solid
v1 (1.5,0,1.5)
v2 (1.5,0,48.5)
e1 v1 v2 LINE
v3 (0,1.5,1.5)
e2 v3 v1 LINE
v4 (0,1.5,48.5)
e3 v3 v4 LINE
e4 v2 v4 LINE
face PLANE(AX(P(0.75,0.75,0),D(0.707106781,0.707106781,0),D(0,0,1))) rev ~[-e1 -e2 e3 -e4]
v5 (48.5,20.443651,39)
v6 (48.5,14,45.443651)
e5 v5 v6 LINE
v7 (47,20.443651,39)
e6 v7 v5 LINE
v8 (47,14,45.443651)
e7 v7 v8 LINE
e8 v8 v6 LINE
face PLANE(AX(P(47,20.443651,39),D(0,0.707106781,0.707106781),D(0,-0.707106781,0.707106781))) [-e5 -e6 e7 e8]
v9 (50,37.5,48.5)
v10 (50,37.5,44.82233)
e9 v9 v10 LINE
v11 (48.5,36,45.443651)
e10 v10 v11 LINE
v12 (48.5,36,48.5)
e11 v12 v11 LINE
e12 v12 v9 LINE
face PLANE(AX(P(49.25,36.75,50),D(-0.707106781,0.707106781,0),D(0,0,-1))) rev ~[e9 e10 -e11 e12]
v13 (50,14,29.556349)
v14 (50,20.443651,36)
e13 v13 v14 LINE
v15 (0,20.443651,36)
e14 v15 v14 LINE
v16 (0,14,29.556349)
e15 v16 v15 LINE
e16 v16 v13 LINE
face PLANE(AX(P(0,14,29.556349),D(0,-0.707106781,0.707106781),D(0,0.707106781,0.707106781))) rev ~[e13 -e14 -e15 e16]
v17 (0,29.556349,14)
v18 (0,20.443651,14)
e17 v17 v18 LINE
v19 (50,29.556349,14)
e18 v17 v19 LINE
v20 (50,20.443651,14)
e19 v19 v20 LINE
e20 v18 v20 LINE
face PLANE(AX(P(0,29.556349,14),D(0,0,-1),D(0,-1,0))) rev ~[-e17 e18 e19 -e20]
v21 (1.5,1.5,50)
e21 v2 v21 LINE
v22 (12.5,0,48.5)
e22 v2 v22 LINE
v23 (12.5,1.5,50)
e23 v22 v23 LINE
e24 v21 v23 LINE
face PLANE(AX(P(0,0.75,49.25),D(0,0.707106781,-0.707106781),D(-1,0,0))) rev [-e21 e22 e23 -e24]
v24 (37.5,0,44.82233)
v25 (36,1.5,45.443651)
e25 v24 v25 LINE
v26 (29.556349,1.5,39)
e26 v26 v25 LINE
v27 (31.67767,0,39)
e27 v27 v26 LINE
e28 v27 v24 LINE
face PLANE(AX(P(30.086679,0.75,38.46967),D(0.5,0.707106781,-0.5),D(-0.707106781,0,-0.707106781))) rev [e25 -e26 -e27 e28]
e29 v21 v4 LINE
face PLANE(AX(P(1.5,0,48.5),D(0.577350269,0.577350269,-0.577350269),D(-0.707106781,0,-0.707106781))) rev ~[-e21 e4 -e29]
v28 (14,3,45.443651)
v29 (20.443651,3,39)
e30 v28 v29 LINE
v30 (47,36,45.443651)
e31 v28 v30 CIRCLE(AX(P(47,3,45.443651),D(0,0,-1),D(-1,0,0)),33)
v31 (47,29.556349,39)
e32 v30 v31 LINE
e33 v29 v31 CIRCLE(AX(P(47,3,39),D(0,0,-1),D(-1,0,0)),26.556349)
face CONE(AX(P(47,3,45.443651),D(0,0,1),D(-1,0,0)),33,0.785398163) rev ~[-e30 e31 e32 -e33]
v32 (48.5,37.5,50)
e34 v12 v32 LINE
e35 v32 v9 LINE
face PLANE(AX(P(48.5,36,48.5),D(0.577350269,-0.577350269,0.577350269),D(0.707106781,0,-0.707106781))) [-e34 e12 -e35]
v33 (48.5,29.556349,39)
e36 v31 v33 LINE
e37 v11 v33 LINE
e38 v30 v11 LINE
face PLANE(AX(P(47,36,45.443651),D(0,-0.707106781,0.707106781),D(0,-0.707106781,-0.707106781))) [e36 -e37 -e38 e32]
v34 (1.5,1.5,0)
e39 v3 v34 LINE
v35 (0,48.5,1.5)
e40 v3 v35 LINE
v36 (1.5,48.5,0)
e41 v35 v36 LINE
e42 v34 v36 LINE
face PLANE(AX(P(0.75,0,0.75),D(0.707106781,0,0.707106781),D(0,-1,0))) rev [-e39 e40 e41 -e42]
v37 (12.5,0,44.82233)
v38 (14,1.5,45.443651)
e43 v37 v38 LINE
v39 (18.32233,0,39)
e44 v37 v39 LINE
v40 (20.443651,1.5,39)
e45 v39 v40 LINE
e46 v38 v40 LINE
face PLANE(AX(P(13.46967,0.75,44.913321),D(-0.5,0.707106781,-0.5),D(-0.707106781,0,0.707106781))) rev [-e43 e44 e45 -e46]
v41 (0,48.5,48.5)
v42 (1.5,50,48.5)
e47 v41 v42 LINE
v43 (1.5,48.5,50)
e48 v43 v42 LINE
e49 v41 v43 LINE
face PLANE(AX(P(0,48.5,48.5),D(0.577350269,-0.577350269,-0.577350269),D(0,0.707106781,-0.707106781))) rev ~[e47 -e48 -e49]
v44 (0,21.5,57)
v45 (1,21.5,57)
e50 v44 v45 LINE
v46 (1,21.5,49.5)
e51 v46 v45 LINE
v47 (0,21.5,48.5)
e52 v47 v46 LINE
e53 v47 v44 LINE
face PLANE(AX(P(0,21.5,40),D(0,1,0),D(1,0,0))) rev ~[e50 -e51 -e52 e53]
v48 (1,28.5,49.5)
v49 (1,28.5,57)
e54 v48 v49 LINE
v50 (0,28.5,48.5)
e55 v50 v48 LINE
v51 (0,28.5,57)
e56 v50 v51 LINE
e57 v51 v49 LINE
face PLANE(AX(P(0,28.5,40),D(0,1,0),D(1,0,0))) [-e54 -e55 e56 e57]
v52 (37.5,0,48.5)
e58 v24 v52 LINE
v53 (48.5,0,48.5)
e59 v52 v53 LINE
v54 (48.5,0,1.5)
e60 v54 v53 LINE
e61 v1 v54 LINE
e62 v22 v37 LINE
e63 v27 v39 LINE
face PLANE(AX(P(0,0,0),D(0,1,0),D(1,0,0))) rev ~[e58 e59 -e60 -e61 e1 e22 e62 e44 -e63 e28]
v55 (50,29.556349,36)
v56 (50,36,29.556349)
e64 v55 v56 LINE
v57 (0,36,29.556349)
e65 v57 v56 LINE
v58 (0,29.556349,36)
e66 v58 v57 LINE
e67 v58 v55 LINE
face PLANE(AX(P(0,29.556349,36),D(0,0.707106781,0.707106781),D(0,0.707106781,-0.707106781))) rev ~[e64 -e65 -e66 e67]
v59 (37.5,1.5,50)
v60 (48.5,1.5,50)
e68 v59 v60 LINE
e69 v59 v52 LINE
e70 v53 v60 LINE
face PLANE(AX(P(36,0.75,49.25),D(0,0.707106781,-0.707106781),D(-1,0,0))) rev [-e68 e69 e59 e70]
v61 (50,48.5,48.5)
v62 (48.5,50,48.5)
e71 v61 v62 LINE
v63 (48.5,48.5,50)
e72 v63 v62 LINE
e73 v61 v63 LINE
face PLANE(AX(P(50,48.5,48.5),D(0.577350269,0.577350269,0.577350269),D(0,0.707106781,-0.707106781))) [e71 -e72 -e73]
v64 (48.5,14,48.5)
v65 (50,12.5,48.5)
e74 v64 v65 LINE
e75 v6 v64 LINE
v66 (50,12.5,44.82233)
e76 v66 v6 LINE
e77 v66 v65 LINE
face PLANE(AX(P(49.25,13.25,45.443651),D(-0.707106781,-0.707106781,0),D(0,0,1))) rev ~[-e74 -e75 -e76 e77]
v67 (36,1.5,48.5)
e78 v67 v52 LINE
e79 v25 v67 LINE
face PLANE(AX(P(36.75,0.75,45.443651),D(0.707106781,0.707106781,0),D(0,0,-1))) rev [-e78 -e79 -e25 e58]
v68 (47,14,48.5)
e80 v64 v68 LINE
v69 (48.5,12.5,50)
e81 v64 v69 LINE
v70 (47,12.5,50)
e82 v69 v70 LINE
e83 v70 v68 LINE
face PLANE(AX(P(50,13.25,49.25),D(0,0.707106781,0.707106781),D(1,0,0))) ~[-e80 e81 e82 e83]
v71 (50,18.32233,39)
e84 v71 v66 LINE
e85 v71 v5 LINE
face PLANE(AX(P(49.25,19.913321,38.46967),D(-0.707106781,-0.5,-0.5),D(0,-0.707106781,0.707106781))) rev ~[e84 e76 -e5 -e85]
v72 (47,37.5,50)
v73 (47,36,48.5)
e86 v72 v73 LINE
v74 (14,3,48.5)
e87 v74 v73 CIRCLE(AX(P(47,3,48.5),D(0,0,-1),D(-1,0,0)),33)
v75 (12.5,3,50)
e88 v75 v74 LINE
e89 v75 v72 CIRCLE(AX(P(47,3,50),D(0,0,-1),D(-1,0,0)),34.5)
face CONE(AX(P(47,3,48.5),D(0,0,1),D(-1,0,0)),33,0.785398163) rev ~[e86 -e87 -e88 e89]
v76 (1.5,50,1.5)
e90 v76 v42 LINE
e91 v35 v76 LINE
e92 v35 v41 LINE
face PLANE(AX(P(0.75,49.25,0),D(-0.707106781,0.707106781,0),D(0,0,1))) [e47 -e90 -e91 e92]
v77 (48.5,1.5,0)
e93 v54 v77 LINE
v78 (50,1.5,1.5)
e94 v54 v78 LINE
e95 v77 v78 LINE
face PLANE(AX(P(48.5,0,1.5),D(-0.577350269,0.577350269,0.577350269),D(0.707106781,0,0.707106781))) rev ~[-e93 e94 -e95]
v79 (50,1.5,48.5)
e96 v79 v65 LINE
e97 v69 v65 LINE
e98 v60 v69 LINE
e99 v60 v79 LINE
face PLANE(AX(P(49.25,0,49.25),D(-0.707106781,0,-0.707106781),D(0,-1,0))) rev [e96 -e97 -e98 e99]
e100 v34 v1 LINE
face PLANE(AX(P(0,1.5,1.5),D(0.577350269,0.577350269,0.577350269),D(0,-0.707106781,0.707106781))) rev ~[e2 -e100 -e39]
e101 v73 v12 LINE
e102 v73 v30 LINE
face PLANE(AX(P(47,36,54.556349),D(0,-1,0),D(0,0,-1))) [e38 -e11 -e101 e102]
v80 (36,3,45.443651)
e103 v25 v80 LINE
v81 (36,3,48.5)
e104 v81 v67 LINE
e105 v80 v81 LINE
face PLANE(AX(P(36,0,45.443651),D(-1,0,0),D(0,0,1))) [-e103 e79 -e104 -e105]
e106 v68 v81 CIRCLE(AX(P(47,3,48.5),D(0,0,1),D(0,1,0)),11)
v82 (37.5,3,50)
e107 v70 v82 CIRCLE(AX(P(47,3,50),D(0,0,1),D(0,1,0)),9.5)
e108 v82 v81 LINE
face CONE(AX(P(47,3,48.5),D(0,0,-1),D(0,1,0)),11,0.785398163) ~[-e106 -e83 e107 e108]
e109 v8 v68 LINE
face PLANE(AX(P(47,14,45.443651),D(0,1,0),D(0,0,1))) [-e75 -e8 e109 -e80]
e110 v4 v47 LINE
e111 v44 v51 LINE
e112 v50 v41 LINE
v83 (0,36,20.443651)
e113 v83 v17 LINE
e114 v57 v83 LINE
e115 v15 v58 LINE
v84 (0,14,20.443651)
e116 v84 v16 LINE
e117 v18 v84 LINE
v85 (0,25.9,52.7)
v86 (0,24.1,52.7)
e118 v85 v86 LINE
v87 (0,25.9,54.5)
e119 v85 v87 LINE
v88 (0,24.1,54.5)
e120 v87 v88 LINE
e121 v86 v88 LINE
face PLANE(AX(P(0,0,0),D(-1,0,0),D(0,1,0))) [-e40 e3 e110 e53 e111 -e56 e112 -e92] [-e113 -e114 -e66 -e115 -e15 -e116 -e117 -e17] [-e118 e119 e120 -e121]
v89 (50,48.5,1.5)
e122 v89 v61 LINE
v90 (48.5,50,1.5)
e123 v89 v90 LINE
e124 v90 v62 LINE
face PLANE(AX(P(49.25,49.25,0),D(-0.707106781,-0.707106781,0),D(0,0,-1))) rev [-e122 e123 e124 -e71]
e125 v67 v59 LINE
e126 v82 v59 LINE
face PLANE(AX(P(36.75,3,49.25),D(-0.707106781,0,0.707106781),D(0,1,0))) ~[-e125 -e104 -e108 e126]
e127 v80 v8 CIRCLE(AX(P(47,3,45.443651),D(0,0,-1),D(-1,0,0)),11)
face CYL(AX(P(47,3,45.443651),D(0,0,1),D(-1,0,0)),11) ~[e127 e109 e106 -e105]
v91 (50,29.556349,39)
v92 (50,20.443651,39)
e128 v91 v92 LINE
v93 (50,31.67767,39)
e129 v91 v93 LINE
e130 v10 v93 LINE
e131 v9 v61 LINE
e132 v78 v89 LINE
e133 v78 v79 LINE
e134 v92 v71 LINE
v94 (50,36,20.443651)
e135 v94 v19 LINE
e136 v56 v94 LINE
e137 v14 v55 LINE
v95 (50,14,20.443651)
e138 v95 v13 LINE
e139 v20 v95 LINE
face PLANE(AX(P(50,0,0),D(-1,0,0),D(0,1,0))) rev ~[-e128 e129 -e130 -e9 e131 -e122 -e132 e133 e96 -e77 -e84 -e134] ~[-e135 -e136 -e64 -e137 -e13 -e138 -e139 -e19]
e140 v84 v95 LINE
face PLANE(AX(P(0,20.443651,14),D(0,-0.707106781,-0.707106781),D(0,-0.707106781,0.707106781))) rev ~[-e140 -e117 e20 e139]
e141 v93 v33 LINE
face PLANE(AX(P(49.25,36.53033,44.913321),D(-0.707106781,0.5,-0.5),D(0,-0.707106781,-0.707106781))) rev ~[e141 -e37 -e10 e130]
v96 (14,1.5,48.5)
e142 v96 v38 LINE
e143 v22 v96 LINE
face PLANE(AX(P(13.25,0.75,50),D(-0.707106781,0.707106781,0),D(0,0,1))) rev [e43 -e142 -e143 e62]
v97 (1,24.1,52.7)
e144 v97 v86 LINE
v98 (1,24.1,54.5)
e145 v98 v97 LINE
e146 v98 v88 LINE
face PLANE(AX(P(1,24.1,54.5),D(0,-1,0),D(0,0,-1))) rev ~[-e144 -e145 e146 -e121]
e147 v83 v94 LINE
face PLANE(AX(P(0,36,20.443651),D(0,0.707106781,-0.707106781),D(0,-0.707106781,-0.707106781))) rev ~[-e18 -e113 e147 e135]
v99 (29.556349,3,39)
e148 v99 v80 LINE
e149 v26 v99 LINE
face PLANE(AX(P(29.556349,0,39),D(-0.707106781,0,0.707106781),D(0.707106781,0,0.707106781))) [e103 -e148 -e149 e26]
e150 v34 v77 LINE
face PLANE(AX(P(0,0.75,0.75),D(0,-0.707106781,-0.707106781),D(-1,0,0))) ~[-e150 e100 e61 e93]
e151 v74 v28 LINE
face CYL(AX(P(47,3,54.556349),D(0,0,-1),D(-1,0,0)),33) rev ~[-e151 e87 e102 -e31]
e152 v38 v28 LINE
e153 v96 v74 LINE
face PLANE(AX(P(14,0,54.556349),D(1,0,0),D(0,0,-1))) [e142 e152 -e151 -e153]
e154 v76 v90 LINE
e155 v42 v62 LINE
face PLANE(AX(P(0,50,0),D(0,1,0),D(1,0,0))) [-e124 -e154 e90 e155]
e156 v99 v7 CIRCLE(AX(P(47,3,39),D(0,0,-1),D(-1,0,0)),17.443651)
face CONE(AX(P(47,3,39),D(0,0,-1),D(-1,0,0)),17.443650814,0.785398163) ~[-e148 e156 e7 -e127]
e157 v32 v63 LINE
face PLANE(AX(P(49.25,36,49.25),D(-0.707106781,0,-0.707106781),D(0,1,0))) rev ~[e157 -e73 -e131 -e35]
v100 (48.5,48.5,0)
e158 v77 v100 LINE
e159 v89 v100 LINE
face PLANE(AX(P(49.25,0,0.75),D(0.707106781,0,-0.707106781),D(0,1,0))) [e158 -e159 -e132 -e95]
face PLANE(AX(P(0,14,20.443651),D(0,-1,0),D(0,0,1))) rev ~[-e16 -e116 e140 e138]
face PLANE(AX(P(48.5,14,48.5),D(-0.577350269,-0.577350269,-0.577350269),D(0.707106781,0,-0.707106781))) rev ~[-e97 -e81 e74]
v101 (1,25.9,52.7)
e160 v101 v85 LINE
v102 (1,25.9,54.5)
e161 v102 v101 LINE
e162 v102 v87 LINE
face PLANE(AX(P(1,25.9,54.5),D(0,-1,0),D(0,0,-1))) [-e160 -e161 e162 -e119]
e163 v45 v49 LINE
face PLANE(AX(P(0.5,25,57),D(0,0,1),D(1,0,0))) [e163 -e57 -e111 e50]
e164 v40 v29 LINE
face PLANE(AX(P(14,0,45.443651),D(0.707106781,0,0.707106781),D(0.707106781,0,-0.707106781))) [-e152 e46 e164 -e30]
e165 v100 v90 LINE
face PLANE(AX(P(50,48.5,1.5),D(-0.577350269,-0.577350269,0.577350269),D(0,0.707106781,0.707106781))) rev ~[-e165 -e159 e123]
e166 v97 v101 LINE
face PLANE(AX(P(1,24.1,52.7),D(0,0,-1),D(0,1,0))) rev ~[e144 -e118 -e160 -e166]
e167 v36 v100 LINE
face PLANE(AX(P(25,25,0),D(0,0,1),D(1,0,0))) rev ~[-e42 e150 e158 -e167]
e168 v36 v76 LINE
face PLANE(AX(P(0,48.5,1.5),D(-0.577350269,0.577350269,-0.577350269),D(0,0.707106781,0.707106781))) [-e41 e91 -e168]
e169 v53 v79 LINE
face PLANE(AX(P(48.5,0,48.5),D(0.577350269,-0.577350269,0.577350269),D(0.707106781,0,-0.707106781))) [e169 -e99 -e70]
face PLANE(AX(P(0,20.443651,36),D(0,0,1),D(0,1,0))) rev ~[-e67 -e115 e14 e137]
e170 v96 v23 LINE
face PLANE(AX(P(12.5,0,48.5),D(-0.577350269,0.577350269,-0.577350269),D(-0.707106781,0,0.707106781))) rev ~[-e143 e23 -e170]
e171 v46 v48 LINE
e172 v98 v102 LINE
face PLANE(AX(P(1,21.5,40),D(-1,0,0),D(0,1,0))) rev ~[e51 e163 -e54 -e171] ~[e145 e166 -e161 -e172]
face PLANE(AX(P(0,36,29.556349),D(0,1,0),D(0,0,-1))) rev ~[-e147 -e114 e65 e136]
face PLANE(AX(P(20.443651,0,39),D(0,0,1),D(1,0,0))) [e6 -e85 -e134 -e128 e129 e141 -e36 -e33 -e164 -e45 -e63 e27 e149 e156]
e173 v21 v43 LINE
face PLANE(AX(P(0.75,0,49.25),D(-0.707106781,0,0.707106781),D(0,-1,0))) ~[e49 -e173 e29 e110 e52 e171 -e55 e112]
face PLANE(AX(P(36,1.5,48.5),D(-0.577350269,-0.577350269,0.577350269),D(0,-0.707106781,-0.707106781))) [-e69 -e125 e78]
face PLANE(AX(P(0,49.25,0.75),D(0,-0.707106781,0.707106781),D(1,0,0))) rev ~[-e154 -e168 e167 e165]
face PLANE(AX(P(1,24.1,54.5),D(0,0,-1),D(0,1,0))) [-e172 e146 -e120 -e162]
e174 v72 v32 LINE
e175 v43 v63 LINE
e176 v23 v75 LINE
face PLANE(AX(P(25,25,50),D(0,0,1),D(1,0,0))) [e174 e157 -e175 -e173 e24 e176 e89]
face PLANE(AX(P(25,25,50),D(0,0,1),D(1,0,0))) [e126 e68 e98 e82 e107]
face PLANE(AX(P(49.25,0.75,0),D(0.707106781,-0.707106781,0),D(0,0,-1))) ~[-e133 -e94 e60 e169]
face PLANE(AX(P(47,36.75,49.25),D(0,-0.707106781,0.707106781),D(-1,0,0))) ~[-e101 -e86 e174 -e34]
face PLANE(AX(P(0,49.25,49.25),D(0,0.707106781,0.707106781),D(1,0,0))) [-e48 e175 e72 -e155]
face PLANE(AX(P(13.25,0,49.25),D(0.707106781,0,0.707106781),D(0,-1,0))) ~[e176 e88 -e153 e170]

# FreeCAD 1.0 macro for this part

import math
import FreeCAD as App
import Part
import Sketcher


def edges_at(feature, points):
    """Names of the edges that pass closest to the given points."""
    edges = feature.Shape.Edges
    near = lambda p: min(range(len(edges)), key=lambda i: edges[i].distToShape(Part.Vertex(*p))[0])
    return sorted({f"Edge{near(p) + 1}" for p in points})

doc = App.newDocument("Part")
body = doc.addObject("PartDesign::Body", "Body")

sketch1 = body.newObject("Sketcher::SketchObject", "Sketch")
sketch1.AttachmentSupport = (doc.getObject("XY_Plane"), [""])
sketch1.MapMode = "FlatFace"
sketch1.addGeometry([
    Part.LineSegment(App.Vector(0, 50, 0), App.Vector(0, 0, 0)),
    Part.LineSegment(App.Vector(0, 0, 0), App.Vector(50, 0, 0)),
    Part.LineSegment(App.Vector(50, 0, 0), App.Vector(50, 50, 0)),
    Part.LineSegment(App.Vector(50, 50, 0), App.Vector(0, 50, 0)),
], False)
sketch1.addConstraint([
    Sketcher.Constraint("Coincident", 0, 2, 1, 1),
    Sketcher.Constraint("Coincident", 1, 2, 2, 1),
    Sketcher.Constraint("Coincident", 2, 2, 3, 1),
    Sketcher.Constraint("Coincident", 3, 2, 0, 1),
    Sketcher.Constraint("Vertical", 0),
    Sketcher.Constraint("Horizontal", 1),
    Sketcher.Constraint("Vertical", 2),
    Sketcher.Constraint("Horizontal", 3),
    Sketcher.Constraint("Coincident", 0, 2, -1, 1),
    Sketcher.Constraint("Equal", 3, 0),
    Sketcher.Constraint("DistanceX", 1, 1, 1, 2, 50.0),
])
pad1 = body.newObject("PartDesign::Pad", "Pad")
pad1.Profile = sketch1
pad1.Length = 50

sketch2 = body.newObject("Sketcher::SketchObject", "Sketch001")
sketch2.AttachmentSupport = (doc.getObject("YZ_Plane"), [""])
sketch2.MapMode = "FlatFace"
sketch2.addGeometry([
    Part.LineSegment(App.Vector(30, 36, 0), App.Vector(36, 30, 0)),
    Part.LineSegment(App.Vector(36, 30, 0), App.Vector(36, 20, 0)),
    Part.LineSegment(App.Vector(36, 20, 0), App.Vector(30, 14, 0)),
    Part.LineSegment(App.Vector(30, 14, 0), App.Vector(20, 14, 0)),
    Part.LineSegment(App.Vector(20, 14, 0), App.Vector(14, 20, 0)),
    Part.LineSegment(App.Vector(14, 20, 0), App.Vector(14, 30, 0)),
    Part.LineSegment(App.Vector(14, 30, 0), App.Vector(20, 36, 0)),
    Part.LineSegment(App.Vector(20, 36, 0), App.Vector(30, 36, 0)),
], False)
sketch2.addConstraint([
    Sketcher.Constraint("Coincident", 0, 2, 1, 1),
    Sketcher.Constraint("Coincident", 1, 2, 2, 1),
    Sketcher.Constraint("Coincident", 2, 2, 3, 1),
    Sketcher.Constraint("Coincident", 3, 2, 4, 1),
    Sketcher.Constraint("Coincident", 4, 2, 5, 1),
    Sketcher.Constraint("Coincident", 5, 2, 6, 1),
    Sketcher.Constraint("Coincident", 6, 2, 7, 1),
    Sketcher.Constraint("Coincident", 7, 2, 0, 1),
    Sketcher.Constraint("Vertical", 1),
    Sketcher.Constraint("Horizontal", 3),
    Sketcher.Constraint("Vertical", 5),
    Sketcher.Constraint("Horizontal", 7),
    Sketcher.Constraint("Perpendicular", 0, 2),
    Sketcher.Constraint("Perpendicular", 2, 4),
    Sketcher.Constraint("Perpendicular", 4, 6),
    Sketcher.Constraint("Horizontal", 1, 2, 4, 2),
    Sketcher.Constraint("Horizontal", 0, 2, 5, 2),
    Sketcher.Constraint("Vertical", 3, 2, 6, 2),
    Sketcher.Constraint("Vertical", 2, 2, 7, 2),
    Sketcher.Constraint("Equal", 7, 1),
    Sketcher.Constraint("DistanceX", -1, 1, 0, 2, 36.0),
    Sketcher.Constraint("DistanceY", -1, 1, 2, 2, 14.0),
    Sketcher.Constraint("DistanceX", -1, 1, 4, 2, 14.0),
    Sketcher.Constraint("DistanceX", 3, 2, 3, 1, 9.112698),
])
pocket1 = body.newObject("PartDesign::Pocket", "Pocket")
pocket1.Profile = sketch2
pocket1.Type = "ThroughAll"
pocket1.Reversed = True

sketch3 = body.newObject("Sketcher::SketchObject", "Sketch002")
sketch3.AttachmentSupport = (doc.getObject("XZ_Plane"), [""])
sketch3.MapMode = "FlatFace"
sketch3.addGeometry([
    Part.LineSegment(App.Vector(30, 39, 0), App.Vector(36, 45, 0)),
    Part.LineSegment(App.Vector(36, 45, 0), App.Vector(36, 55, 0)),
    Part.LineSegment(App.Vector(36, 55, 0), App.Vector(30, 61, 0)),
    Part.LineSegment(App.Vector(30, 61, 0), App.Vector(20, 61, 0)),
    Part.LineSegment(App.Vector(20, 61, 0), App.Vector(14, 55, 0)),
    Part.LineSegment(App.Vector(14, 55, 0), App.Vector(14, 45, 0)),
    Part.LineSegment(App.Vector(14, 45, 0), App.Vector(20, 39, 0)),
    Part.LineSegment(App.Vector(20, 39, 0), App.Vector(30, 39, 0)),
], False)
sketch3.addConstraint([
    Sketcher.Constraint("Coincident", 0, 2, 1, 1),
    Sketcher.Constraint("Coincident", 1, 2, 2, 1),
    Sketcher.Constraint("Coincident", 2, 2, 3, 1),
    Sketcher.Constraint("Coincident", 3, 2, 4, 1),
    Sketcher.Constraint("Coincident", 4, 2, 5, 1),
    Sketcher.Constraint("Coincident", 5, 2, 6, 1),
    Sketcher.Constraint("Coincident", 6, 2, 7, 1),
    Sketcher.Constraint("Coincident", 7, 2, 0, 1),
    Sketcher.Constraint("Vertical", 1),
    Sketcher.Constraint("Horizontal", 3),
    Sketcher.Constraint("Vertical", 5),
    Sketcher.Constraint("Horizontal", 7),
    Sketcher.Constraint("Perpendicular", 0, 2),
    Sketcher.Constraint("Perpendicular", 2, 4),
    Sketcher.Constraint("Perpendicular", 4, 6),
    Sketcher.Constraint("Horizontal", 1, 2, 4, 2),
    Sketcher.Constraint("Horizontal", 0, 2, 5, 2),
    Sketcher.Constraint("Vertical", 3, 2, 6, 2),
    Sketcher.Constraint("Vertical", 2, 2, 7, 2),
    Sketcher.Constraint("Equal", 7, 1),
    Sketcher.Constraint("DistanceX", -1, 1, 0, 2, 36.0),
    Sketcher.Constraint("DistanceY", -1, 1, 2, 2, 61.0),
    Sketcher.Constraint("DistanceX", -1, 1, 4, 2, 14.0),
    Sketcher.Constraint("DistanceX", 3, 2, 3, 1, 9.112698),
])

sketch4 = body.newObject("Sketcher::SketchObject", "Sketch003")
sketch4.AttachmentSupport = (doc.getObject("XY_Plane"), [""])
sketch4.MapMode = "FlatFace"
sketch4.AttachmentOffset = App.Placement(App.Vector(0, 0, 50), App.Rotation())
sketch4.addGeometry([
    Part.LineSegment(App.Vector(25, 0, 0), App.Vector(25, 3, 0)),
    Part.ArcOfCircle(Part.Circle(App.Vector(47, 3, 0), App.Vector(0, 0, 1), 22), math.radians(90), math.radians(180)),
    Part.LineSegment(App.Vector(47, 25, 0), App.Vector(50, 25, 0)),
], False)
sketch4.addConstraint([
    Sketcher.Constraint("Tangent", 0, 2, 1, 2),
    Sketcher.Constraint("Tangent", 1, 1, 2, 1),
    Sketcher.Constraint("Vertical", 0),
    Sketcher.Constraint("Horizontal", 2),
    Sketcher.Constraint("PointOnObject", 0, 1, -1),
    Sketcher.Constraint("Equal", 2, 0),
    Sketcher.Constraint("Radius", 1, 22.0),
    Sketcher.Constraint("DistanceX", 2, 1, 2, 2, 3.0),
    Sketcher.Constraint("DistanceX", -1, 1, 1, 3, 47.0),
])
doc.recompute()

subtractivepipe = body.newObject("PartDesign::SubtractivePipe", "SubtractivePipe")
subtractivepipe.Profile = sketch3
subtractivepipe.Spine = (sketch4, ["Edge1", "Edge2", "Edge3"])
doc.recompute()

chamfer = body.newObject("PartDesign::Chamfer", "Chamfer")
chamfer.Base = (subtractivepipe, edges_at(subtractivepipe, [
    (50, 7, 50),
    (25, 50, 50),
    (43, 0, 50),
    (50, 43, 50),
    (36, 1.5, 50),
    (39.222, 10.778, 50),
    (48.5, 14, 50),
    (14, 1.5, 50),
    (23.665, 26.335, 50),
    (48.5, 36, 50),
    (50, 36, 47.722),
    (50, 14, 47.722),
    (36, 0, 47.722),
    (14, 0, 47.722),
    (17.222, 0, 42.222),
    (32.778, 0, 42.222),
    (50, 32.778, 42.222),
    (50, 17.222, 42.222),
    (0, 25, 50),
    (25, 50, 0),
    (50, 25, 0),
    (25, 0, 0),
    (0, 25, 0),
    (7, 0, 50),
    (0, 50, 25),
    (50, 50, 25),
    (50, 0, 25),
    (0, 0, 25),
]))
chamfer.Size = 1.5

sketch5 = body.newObject("Sketcher::SketchObject", "Sketch004")
sketch5.AttachmentSupport = (doc.getObject("XY_Plane"), [""])
sketch5.MapMode = "FlatFace"
sketch5.AttachmentOffset = App.Placement(App.Vector(0, 0, 50), App.Rotation())
sketch5.addGeometry([
    Part.LineSegment(App.Vector(0, 28.5, 0), App.Vector(0, 21.5, 0)),
    Part.LineSegment(App.Vector(0, 21.5, 0), App.Vector(1, 21.5, 0)),
    Part.LineSegment(App.Vector(1, 21.5, 0), App.Vector(1, 28.5, 0)),
    Part.LineSegment(App.Vector(1, 28.5, 0), App.Vector(0, 28.5, 0)),
], False)
sketch5.addConstraint([
    Sketcher.Constraint("Coincident", 0, 2, 1, 1),
    Sketcher.Constraint("Coincident", 1, 2, 2, 1),
    Sketcher.Constraint("Coincident", 2, 2, 3, 1),
    Sketcher.Constraint("Coincident", 3, 2, 0, 1),
    Sketcher.Constraint("Vertical", 0),
    Sketcher.Constraint("Horizontal", 1),
    Sketcher.Constraint("Vertical", 2),
    Sketcher.Constraint("Horizontal", 3),
    Sketcher.Constraint("PointOnObject", 0, 2, -2),
    Sketcher.Constraint("DistanceX", 1, 1, 1, 2, 1.0),
    Sketcher.Constraint("DistanceY", 0, 2, 0, 1, 7.0),
    Sketcher.Constraint("DistanceY", -1, 1, 0, 2, 21.5),
])
pad2 = body.newObject("PartDesign::Pad", "Pad001")
pad2.Profile = sketch5
pad2.Type = "TwoLengths"
pad2.Length = 7
pad2.Length2 = 10

sketch6 = body.newObject("Sketcher::SketchObject", "Sketch005")
sketch6.AttachmentSupport = (doc.getObject("YZ_Plane"), [""])
sketch6.MapMode = "FlatFace"
sketch6.AttachmentOffset = App.Placement(App.Vector(0, 0, 1), App.Rotation())
sketch6.addGeometry([
    Part.LineSegment(App.Vector(25.9, 54.5, 0), App.Vector(24.1, 54.5, 0)),
    Part.LineSegment(App.Vector(24.1, 54.5, 0), App.Vector(24.1, 52.7, 0)),
    Part.LineSegment(App.Vector(24.1, 52.7, 0), App.Vector(25.9, 52.7, 0)),
    Part.LineSegment(App.Vector(25.9, 52.7, 0), App.Vector(25.9, 54.5, 0)),
], False)
sketch6.addConstraint([
    Sketcher.Constraint("Coincident", 0, 2, 1, 1),
    Sketcher.Constraint("Coincident", 1, 2, 2, 1),
    Sketcher.Constraint("Coincident", 2, 2, 3, 1),
    Sketcher.Constraint("Coincident", 3, 2, 0, 1),
    Sketcher.Constraint("Horizontal", 0),
    Sketcher.Constraint("Vertical", 1),
    Sketcher.Constraint("Horizontal", 2),
    Sketcher.Constraint("Vertical", 3),
    Sketcher.Constraint("Equal", 2, 1),
    Sketcher.Constraint("DistanceX", 0, 2, 0, 1, 1.8),
    Sketcher.Constraint("DistanceX", -1, 1, 0, 2, 24.1),
    Sketcher.Constraint("DistanceY", -1, 1, 0, 2, 54.5),
])
pocket2 = body.newObject("PartDesign::Pocket", "Pocket001")
pocket2.Profile = sketch6
pocket2.Length = 7

doc.recompute()
